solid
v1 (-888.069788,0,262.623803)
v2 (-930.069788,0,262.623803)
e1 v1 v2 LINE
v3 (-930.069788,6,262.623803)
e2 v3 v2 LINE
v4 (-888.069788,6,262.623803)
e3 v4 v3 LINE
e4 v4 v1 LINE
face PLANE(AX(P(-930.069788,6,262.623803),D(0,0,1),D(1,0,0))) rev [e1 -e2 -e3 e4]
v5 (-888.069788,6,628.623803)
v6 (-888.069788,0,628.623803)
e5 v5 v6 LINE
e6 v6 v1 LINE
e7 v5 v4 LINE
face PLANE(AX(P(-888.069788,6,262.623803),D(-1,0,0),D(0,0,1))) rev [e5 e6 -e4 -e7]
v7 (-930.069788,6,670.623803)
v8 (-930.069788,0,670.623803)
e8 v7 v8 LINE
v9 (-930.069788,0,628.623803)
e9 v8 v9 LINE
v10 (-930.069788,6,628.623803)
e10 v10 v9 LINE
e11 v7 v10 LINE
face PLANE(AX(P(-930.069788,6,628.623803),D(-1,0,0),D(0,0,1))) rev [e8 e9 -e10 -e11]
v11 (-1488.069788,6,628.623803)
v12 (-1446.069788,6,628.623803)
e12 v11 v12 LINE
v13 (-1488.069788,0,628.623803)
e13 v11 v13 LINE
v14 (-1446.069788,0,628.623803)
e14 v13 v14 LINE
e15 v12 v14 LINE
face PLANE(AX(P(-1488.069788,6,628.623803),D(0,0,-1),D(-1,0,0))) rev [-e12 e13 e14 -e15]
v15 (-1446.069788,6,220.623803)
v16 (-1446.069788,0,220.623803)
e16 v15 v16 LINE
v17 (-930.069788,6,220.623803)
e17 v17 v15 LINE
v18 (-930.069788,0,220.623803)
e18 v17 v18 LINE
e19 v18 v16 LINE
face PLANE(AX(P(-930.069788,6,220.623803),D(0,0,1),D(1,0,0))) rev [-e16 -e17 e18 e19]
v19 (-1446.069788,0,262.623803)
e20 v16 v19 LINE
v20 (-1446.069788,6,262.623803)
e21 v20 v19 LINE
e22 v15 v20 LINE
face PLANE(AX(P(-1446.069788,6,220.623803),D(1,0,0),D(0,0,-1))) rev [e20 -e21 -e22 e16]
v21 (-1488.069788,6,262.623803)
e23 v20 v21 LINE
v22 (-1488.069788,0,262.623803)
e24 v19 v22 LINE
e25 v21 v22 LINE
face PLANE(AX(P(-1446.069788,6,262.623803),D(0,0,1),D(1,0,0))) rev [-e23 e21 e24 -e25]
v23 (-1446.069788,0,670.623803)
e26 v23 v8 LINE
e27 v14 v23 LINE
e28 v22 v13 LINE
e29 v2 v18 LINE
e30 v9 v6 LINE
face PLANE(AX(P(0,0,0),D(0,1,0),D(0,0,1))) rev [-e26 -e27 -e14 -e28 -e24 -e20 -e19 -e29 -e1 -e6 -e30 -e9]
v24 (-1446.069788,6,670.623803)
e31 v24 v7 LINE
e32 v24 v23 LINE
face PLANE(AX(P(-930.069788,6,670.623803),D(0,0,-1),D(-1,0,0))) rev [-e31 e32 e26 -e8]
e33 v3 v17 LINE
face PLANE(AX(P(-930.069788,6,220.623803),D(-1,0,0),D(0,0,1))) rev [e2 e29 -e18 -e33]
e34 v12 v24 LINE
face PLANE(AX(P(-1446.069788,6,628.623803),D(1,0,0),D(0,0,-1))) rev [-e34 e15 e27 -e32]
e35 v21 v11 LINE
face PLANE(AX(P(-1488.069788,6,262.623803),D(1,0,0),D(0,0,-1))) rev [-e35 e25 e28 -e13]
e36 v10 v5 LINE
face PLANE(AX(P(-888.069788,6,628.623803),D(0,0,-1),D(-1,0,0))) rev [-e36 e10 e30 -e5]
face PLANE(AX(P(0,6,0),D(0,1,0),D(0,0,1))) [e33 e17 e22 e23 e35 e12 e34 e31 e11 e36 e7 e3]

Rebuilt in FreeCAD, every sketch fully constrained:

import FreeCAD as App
import Part
import Sketcher

V = App.Vector

doc = App.newDocument("Part")
body = doc.addObject("PartDesign::Body", "Body")

sketch1 = body.newObject("Sketcher::SketchObject", "Sketch")
sketch1.AttachmentSupport = (doc.getObject("XZ_Plane"), [""])
sketch1.MapMode = "FlatFace"
sketch1.addGeometry([
    Part.LineSegment(V(-1446, 221, 0), V(-1446, 263, 0)),
    Part.LineSegment(V(-1446, 263, 0), V(-1488, 263, 0)),
    Part.LineSegment(V(-1488, 263, 0), V(-1488, 629, 0)),
    Part.LineSegment(V(-1488, 629, 0), V(-1446, 629, 0)),
    Part.LineSegment(V(-1446, 629, 0), V(-1446, 671, 0)),
    Part.LineSegment(V(-1446, 671, 0), V(-930, 671, 0)),
    Part.LineSegment(V(-930, 671, 0), V(-930, 629, 0)),
    Part.LineSegment(V(-930, 629, 0), V(-888, 629, 0)),
    Part.LineSegment(V(-888, 629, 0), V(-888, 263, 0)),
    Part.LineSegment(V(-888, 263, 0), V(-930, 263, 0)),
    Part.LineSegment(V(-930, 263, 0), V(-930, 221, 0)),
    Part.LineSegment(V(-930, 221, 0), V(-1446, 221, 0)),
], False)
sketch1.addConstraint([
    Sketcher.Constraint("Coincident", 0, 2, 1, 1),
    Sketcher.Constraint("Coincident", 1, 2, 2, 1),
    Sketcher.Constraint("Coincident", 2, 2, 3, 1),
    Sketcher.Constraint("Coincident", 3, 2, 4, 1),
    Sketcher.Constraint("Coincident", 4, 2, 5, 1),
    Sketcher.Constraint("Coincident", 5, 2, 6, 1),
    Sketcher.Constraint("Coincident", 6, 2, 7, 1),
    Sketcher.Constraint("Coincident", 7, 2, 8, 1),
    Sketcher.Constraint("Coincident", 8, 2, 9, 1),
    Sketcher.Constraint("Coincident", 9, 2, 10, 1),
    Sketcher.Constraint("Coincident", 10, 2, 11, 1),
    Sketcher.Constraint("Coincident", 11, 2, 0, 1),
    Sketcher.Constraint("Vertical", 0),
    Sketcher.Constraint("Horizontal", 1),
    Sketcher.Constraint("Vertical", 2),
    Sketcher.Constraint("Horizontal", 3),
    Sketcher.Constraint("Vertical", 4),
    Sketcher.Constraint("Horizontal", 5),
    Sketcher.Constraint("Vertical", 6),
    Sketcher.Constraint("Horizontal", 7),
    Sketcher.Constraint("Vertical", 8),
    Sketcher.Constraint("Horizontal", 9),
    Sketcher.Constraint("Vertical", 10),
    Sketcher.Constraint("Horizontal", 11),
    Sketcher.Constraint("Horizontal", 3, 2, 6, 2),
    Sketcher.Constraint("Horizontal", 1, 2, 8, 2),
    Sketcher.Constraint("Vertical", 0, 2, 3, 2),
    Sketcher.Constraint("Vertical", 6, 2, 9, 2),
    Sketcher.Constraint("Equal", 3, 7),
    Sketcher.Constraint("Equal", 9, 0),
    Sketcher.Constraint("Equal", 0, 4),
    Sketcher.Constraint("DistanceX", 1, 2, 1, 1, 42.0),
    Sketcher.Constraint("DistanceX", 5, 1, 5, 2, 516.0),
    Sketcher.Constraint("DistanceY", 2, 1, 2, 2, 366.0),
    Sketcher.Constraint("DistanceX", 0, 2, -1, 1, 1446.069788),
    Sketcher.Constraint("DistanceY", -1, 1, 0, 2, 262.623803),
])
pad1 = body.newObject("PartDesign::Pad", "Pad")
pad1.Profile = sketch1
pad1.Length = 6
pad1.Reversed = True

doc.recompute()
